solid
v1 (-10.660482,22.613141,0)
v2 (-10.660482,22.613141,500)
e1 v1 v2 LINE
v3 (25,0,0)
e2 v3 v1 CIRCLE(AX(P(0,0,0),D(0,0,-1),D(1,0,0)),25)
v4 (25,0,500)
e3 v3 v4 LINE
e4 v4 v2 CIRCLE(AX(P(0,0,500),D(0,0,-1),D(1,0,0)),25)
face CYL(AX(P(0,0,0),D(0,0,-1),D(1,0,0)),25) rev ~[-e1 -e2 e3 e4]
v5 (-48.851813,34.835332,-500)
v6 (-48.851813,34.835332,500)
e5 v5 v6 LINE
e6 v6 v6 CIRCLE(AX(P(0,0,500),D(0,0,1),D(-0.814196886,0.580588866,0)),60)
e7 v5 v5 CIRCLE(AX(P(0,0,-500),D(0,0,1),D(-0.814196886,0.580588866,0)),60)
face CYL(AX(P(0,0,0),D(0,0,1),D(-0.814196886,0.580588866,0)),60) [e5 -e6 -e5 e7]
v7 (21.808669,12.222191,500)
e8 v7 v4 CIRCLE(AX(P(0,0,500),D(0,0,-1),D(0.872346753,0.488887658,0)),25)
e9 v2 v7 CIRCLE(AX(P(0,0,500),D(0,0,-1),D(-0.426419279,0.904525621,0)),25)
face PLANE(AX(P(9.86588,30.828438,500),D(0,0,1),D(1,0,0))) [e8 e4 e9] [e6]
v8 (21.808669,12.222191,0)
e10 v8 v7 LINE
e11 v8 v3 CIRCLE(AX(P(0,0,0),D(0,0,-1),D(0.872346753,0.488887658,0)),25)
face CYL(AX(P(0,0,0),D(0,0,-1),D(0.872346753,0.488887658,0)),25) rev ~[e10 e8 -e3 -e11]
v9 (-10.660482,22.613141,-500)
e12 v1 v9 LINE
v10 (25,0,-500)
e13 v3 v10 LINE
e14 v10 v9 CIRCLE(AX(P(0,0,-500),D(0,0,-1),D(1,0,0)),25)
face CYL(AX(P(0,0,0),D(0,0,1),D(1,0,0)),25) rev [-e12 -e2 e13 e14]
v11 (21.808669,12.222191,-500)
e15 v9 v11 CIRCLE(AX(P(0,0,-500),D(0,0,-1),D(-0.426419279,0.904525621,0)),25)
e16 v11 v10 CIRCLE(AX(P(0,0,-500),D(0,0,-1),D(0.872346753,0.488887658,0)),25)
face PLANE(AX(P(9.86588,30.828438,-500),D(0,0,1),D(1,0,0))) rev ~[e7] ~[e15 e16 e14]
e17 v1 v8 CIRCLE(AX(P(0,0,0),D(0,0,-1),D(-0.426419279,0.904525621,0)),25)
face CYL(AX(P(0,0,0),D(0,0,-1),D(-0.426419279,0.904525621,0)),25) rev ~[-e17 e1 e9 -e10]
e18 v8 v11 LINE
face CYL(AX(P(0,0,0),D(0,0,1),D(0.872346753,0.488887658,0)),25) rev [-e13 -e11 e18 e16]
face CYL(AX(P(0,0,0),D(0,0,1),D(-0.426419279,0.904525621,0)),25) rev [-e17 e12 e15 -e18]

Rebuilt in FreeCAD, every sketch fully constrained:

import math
import FreeCAD as App
import Part
import Sketcher

V = App.Vector

doc = App.newDocument("Part")
body = doc.addObject("PartDesign::Body", "Body")

sketch1 = body.newObject("Sketcher::SketchObject", "Sketch")
sketch1.AttachmentSupport = (doc.getObject("XY_Plane"), [""])
sketch1.MapMode = "FlatFace"
sketch1.addGeometry([
    Part.Circle(V(0, 0, 0), V(0, 0, 1), 60),
    Part.ArcOfCircle(Part.Circle(V(0, 0, 0), V(0, 0, 1), 25), math.radians(29), math.radians(115)),
    Part.ArcOfCircle(Part.Circle(V(0, 0, 0), V(0, 0, 1), 25), math.radians(0), math.radians(29)),
    Part.ArcOfCircle(Part.Circle(V(0, 0, 0), V(0, 0, 1), 25), math.radians(115), math.radians(360)),
], False)
sketch1.addConstraint([
    Sketcher.Constraint("Tangent", 1, 1, 2, 2),
    Sketcher.Constraint("Tangent", 2, 1, 3, 2),
    Sketcher.Constraint("Tangent", 3, 1, 1, 2),
    Sketcher.Constraint("Coincident", 0, 3, -1, 1),
    Sketcher.Constraint("Coincident", 1, 3, -1, 1),
    Sketcher.Constraint("PointOnObject", 2, 1, -1),
    Sketcher.Constraint("Diameter", 0, 120.0),
    Sketcher.Constraint("Radius", 1, 25.0),
    Sketcher.Constraint("DistanceX", -1, 1, 1, 1, 21.808669),
    Sketcher.Constraint("DistanceX", 3, 1, -1, 1, 10.660482),
])
pad1 = body.newObject("PartDesign::Pad", "Pad")
pad1.Profile = sketch1
pad1.Length = 1000
pad1.Midplane = True

doc.recompute()
